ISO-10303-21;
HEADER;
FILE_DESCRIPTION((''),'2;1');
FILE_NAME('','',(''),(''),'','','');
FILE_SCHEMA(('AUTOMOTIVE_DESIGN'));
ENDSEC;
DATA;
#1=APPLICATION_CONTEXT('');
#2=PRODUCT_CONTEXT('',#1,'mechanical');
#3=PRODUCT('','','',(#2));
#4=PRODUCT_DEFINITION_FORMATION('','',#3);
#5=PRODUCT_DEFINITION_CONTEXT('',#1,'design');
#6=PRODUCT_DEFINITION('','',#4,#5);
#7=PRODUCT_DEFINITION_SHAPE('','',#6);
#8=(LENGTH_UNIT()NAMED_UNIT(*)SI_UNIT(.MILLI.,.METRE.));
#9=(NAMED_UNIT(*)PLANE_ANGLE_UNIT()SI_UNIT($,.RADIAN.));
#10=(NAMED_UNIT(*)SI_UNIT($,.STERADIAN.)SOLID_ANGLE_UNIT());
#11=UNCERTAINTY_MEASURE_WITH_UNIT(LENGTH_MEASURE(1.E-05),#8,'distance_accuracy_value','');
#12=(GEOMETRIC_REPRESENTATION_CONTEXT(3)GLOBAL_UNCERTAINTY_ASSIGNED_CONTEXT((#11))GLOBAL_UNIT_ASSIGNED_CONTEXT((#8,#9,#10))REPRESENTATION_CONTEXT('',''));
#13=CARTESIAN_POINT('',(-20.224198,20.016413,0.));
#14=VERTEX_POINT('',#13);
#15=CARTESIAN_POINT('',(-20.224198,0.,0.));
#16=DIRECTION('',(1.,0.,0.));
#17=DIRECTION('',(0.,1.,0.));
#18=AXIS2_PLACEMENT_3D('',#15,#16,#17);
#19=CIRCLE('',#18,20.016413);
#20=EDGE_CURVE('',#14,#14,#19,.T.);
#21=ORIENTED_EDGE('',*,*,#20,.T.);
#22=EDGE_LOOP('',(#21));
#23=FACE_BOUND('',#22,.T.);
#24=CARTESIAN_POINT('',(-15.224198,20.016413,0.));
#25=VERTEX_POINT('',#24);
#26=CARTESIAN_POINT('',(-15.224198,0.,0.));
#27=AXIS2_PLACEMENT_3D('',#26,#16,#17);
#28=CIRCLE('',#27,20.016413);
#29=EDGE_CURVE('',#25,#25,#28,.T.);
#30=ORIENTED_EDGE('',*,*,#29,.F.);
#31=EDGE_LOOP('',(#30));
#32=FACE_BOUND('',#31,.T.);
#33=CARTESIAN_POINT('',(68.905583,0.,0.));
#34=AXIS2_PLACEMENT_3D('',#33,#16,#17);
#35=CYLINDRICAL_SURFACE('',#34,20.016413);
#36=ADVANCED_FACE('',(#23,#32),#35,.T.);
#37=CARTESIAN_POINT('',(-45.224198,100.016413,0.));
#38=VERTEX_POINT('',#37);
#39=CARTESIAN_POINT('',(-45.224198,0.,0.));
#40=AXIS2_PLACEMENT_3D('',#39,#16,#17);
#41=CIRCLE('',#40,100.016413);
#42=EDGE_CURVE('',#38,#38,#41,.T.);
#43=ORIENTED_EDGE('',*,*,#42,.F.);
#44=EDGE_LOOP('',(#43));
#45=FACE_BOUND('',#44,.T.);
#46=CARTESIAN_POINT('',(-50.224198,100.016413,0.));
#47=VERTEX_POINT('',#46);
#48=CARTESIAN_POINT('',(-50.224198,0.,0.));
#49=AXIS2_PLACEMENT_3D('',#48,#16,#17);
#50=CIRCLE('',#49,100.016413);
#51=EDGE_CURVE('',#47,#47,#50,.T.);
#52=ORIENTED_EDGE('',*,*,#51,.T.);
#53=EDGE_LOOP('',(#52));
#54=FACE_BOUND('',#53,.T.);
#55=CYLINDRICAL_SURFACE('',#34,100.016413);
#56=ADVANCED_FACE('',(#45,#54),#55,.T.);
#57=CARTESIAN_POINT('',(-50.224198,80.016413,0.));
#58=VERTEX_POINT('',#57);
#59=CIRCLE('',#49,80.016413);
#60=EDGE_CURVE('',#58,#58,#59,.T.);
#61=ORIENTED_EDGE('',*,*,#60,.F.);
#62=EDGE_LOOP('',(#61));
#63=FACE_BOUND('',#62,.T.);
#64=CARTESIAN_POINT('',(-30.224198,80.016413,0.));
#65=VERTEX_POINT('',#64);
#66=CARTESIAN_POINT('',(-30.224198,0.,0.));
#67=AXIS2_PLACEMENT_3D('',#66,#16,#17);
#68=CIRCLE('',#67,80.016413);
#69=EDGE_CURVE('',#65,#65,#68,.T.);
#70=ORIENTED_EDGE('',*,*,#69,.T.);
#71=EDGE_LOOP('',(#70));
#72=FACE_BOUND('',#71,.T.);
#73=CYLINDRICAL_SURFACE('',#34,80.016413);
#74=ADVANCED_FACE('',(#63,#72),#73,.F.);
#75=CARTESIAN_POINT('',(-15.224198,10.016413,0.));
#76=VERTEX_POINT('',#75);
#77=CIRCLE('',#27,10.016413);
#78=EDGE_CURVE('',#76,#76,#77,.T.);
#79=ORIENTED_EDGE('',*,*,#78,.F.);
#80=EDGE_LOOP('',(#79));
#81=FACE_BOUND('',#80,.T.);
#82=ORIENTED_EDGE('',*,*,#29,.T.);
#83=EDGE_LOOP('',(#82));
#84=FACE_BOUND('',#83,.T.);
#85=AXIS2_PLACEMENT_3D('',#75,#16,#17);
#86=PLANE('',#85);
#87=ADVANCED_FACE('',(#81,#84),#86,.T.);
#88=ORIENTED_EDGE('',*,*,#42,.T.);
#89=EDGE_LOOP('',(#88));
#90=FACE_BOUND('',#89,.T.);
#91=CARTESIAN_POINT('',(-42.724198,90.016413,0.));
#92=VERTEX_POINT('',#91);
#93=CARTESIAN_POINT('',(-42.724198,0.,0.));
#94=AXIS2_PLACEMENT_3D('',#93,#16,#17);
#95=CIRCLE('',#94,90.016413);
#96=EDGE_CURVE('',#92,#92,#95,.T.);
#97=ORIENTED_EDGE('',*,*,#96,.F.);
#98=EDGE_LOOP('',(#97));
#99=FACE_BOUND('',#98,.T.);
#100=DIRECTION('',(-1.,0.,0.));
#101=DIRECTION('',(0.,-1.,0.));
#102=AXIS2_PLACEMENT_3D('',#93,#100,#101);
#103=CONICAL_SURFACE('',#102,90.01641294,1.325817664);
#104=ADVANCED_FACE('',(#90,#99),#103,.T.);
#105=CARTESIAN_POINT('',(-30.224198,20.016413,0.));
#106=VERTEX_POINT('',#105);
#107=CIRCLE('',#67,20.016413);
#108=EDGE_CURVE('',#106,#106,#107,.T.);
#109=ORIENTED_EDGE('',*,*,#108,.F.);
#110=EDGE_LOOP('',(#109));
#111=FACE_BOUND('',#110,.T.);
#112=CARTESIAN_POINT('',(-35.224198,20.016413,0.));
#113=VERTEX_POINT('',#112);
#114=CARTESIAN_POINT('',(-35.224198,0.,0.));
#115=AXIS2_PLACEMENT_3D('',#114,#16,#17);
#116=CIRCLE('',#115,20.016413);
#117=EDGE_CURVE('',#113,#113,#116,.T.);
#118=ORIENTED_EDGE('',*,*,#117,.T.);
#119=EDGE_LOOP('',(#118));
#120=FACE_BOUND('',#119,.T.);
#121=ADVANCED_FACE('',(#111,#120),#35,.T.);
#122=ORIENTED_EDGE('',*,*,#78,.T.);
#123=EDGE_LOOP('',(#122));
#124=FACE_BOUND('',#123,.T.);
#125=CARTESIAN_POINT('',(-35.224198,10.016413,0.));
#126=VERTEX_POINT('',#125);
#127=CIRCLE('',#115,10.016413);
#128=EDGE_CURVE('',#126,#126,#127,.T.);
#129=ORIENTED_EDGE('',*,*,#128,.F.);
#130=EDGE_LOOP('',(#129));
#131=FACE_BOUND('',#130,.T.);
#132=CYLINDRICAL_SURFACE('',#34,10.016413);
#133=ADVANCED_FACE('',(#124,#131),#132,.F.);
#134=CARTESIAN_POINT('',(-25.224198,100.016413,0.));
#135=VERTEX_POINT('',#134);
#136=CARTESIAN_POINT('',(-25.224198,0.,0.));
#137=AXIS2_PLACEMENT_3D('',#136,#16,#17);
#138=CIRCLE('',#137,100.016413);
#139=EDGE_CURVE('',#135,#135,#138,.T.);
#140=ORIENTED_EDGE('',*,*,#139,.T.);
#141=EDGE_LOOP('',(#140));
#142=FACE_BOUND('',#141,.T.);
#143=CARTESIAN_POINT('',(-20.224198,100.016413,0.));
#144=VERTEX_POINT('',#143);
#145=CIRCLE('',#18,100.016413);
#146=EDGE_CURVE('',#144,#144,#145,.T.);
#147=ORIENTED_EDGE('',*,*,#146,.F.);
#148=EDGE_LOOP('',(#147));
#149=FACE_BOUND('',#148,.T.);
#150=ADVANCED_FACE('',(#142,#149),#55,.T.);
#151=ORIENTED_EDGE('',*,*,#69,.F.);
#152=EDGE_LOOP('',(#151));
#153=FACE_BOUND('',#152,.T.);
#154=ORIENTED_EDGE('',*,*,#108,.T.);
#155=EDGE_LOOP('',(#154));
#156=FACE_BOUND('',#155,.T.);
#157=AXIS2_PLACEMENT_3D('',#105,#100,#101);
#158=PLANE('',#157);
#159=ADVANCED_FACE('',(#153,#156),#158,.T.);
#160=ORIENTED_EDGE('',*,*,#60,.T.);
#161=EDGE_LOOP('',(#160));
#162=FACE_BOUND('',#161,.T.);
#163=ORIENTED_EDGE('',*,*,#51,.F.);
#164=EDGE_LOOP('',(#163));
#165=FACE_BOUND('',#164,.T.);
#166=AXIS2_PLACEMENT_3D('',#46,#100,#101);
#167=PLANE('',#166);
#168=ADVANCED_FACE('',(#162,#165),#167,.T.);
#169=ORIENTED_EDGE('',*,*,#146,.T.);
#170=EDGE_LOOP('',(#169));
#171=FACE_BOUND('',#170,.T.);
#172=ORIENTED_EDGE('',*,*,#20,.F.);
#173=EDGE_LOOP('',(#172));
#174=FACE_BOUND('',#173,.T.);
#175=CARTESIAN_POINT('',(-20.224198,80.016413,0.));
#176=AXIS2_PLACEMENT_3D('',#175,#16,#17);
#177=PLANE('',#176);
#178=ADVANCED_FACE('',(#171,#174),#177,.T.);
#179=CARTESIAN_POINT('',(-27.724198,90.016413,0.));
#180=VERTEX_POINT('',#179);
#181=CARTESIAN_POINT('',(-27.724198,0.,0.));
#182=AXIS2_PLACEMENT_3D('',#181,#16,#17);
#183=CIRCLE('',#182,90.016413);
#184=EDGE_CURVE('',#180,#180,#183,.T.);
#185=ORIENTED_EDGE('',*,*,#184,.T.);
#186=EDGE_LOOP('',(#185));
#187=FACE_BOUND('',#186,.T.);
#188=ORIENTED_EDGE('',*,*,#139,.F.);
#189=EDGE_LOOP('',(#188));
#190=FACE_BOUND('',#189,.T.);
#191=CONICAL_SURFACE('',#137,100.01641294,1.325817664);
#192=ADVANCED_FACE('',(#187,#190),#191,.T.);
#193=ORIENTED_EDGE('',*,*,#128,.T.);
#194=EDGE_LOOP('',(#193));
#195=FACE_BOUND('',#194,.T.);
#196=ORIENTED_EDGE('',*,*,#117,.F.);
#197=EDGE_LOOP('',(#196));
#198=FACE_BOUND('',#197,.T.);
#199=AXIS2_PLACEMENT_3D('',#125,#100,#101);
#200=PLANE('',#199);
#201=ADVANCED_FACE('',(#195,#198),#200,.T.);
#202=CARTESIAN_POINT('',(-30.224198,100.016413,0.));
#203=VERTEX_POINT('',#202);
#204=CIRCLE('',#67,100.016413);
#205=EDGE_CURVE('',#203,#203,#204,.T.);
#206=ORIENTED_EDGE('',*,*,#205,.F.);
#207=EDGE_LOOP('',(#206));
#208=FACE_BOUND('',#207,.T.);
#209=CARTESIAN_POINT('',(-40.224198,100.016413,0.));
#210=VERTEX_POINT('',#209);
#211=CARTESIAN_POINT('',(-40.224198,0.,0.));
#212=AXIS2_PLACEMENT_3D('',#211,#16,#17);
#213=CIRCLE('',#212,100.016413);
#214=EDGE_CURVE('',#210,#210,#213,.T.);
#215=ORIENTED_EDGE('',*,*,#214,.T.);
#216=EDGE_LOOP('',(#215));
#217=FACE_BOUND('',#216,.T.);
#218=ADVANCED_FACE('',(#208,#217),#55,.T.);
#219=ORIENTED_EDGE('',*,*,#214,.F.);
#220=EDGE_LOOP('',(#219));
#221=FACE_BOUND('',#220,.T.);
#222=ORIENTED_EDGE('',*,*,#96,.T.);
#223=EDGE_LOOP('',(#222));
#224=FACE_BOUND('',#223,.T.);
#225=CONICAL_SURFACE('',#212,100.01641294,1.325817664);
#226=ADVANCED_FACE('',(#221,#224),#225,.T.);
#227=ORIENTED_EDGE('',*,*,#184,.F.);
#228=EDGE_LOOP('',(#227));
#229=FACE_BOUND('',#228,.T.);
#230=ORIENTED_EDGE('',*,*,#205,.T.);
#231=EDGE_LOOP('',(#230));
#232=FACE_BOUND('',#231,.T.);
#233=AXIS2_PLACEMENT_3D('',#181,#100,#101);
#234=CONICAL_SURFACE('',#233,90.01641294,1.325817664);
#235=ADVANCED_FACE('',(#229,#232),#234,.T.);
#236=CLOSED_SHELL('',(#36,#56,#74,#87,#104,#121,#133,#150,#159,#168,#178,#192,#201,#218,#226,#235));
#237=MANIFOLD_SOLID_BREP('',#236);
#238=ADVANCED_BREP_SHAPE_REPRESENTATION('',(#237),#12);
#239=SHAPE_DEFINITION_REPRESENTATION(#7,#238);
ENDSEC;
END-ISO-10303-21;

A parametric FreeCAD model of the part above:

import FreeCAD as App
import Part
import Sketcher

V = App.Vector

doc = App.newDocument("Part")
params = doc.addObject("Spreadsheet::Sheet", "Params")
for row, (alias, value) in enumerate([
    ("sketch1_width", "20 mm"),
    ("sketch1_width2", "5 mm"),
    ("sketch1_height", "80 mm"),
    ("revolution_angle", "360 deg"),
], start=1):
    params.set(f"A{row}", alias)
    params.set(f"B{row}", "=" + value)
    params.setAlias(f"B{row}", alias)

body = doc.addObject("PartDesign::Body", "Body")

# Sketch on XY plane
sketch1 = body.newObject("Sketcher::SketchObject", "Sketch")
sketch1.AttachmentSupport = (doc.getObject("XY_Plane"), [""])
sketch1.MapMode = "FlatFace"
sketch1.addGeometry(Part.LineSegment(V(-35, 10, 0), V(-15, 10, 0)), False)
sketch1.addGeometry(Part.LineSegment(V(-15, 10, 0), V(-15, 20, 0)), False)
sketch1.addGeometry(Part.LineSegment(V(-15, 20, 0), V(-20, 20, 0)), False)
sketch1.addGeometry(Part.LineSegment(V(-20, 20, 0), V(-20, 100, 0)), False)
sketch1.addGeometry(Part.LineSegment(V(-20, 100, 0), V(-25, 100, 0)), False)
sketch1.addGeometry(Part.LineSegment(V(-25, 100, 0), V(-28, 90, 0)), False)
sketch1.addGeometry(Part.LineSegment(V(-28, 90, 0), V(-30, 100, 0)), False)
sketch1.addGeometry(Part.LineSegment(V(-30, 100, 0), V(-40, 100, 0)), False)
sketch1.addGeometry(Part.LineSegment(V(-40, 100, 0), V(-43, 90, 0)), False)
sketch1.addGeometry(Part.LineSegment(V(-43, 90, 0), V(-45, 100, 0)), False)
sketch1.addGeometry(Part.LineSegment(V(-45, 100, 0), V(-50, 100, 0)), False)
sketch1.addGeometry(Part.LineSegment(V(-50, 100, 0), V(-50, 80, 0)), False)
sketch1.addGeometry(Part.LineSegment(V(-50, 80, 0), V(-30, 80, 0)), False)
sketch1.addGeometry(Part.LineSegment(V(-30, 80, 0), V(-30, 20, 0)), False)
sketch1.addGeometry(Part.LineSegment(V(-30, 20, 0), V(-35, 20, 0)), False)
sketch1.addGeometry(Part.LineSegment(V(-35, 20, 0), V(-35, 10, 0)), False)
sketch1.addConstraint(Sketcher.Constraint("Coincident", 0, 2, 1, 1))
sketch1.addConstraint(Sketcher.Constraint("Coincident", 1, 2, 2, 1))
sketch1.addConstraint(Sketcher.Constraint("Coincident", 2, 2, 3, 1))
sketch1.addConstraint(Sketcher.Constraint("Coincident", 3, 2, 4, 1))
sketch1.addConstraint(Sketcher.Constraint("Coincident", 4, 2, 5, 1))
sketch1.addConstraint(Sketcher.Constraint("Coincident", 5, 2, 6, 1))
sketch1.addConstraint(Sketcher.Constraint("Coincident", 6, 2, 7, 1))
sketch1.addConstraint(Sketcher.Constraint("Coincident", 7, 2, 8, 1))
sketch1.addConstraint(Sketcher.Constraint("Coincident", 8, 2, 9, 1))
sketch1.addConstraint(Sketcher.Constraint("Coincident", 9, 2, 10, 1))
sketch1.addConstraint(Sketcher.Constraint("Coincident", 10, 2, 11, 1))
sketch1.addConstraint(Sketcher.Constraint("Coincident", 11, 2, 12, 1))
sketch1.addConstraint(Sketcher.Constraint("Coincident", 12, 2, 13, 1))
sketch1.addConstraint(Sketcher.Constraint("Coincident", 13, 2, 14, 1))
sketch1.addConstraint(Sketcher.Constraint("Coincident", 14, 2, 15, 1))
sketch1.addConstraint(Sketcher.Constraint("Coincident", 15, 2, 0, 1))
sketch1.addConstraint(Sketcher.Constraint("Horizontal", 0))
sketch1.addConstraint(Sketcher.Constraint("Vertical", 1))
sketch1.addConstraint(Sketcher.Constraint("Horizontal", 2))
sketch1.addConstraint(Sketcher.Constraint("Vertical", 3))
sketch1.addConstraint(Sketcher.Constraint("Horizontal", 4))
sketch1.addConstraint(Sketcher.Constraint("Horizontal", 7))
sketch1.addConstraint(Sketcher.Constraint("Horizontal", 10))
sketch1.addConstraint(Sketcher.Constraint("Vertical", 11))
sketch1.addConstraint(Sketcher.Constraint("Horizontal", 12))
sketch1.addConstraint(Sketcher.Constraint("Vertical", 13))
sketch1.addConstraint(Sketcher.Constraint("Horizontal", 14))
sketch1.addConstraint(Sketcher.Constraint("Vertical", 15))
sketch1.addConstraint(Sketcher.Constraint("Parallel", 5, 8))
sketch1.addConstraint(Sketcher.Constraint("Parallel", 6, 9))
sketch1.addConstraint(Sketcher.Constraint("Horizontal", 4, 2, 6, 2))
sketch1.addConstraint(Sketcher.Constraint("Horizontal", 5, 2, 8, 2))
sketch1.addConstraint(Sketcher.Constraint("Horizontal", 7, 2, 9, 2))
sketch1.addConstraint(Sketcher.Constraint("Horizontal", 2, 2, 13, 2))
sketch1.addConstraint(Sketcher.Constraint("Vertical", 6, 2, 12, 2))
sketch1.addConstraint(Sketcher.Constraint("Equal", 2, 4))
sketch1.addConstraint(Sketcher.Constraint("Equal", 4, 10))
sketch1.addConstraint(Sketcher.Constraint("Equal", 0, 12))
sketch1.addConstraint(Sketcher.Constraint("Equal", 10, 14))
sketch1.addConstraint(Sketcher.Constraint("Equal", 7, 1))
sketch1.addConstraint(Sketcher.Constraint("Equal", 12, 11))
sketch1.addConstraint(Sketcher.Constraint("Equal", 5, 6))
sketch1.addConstraint(Sketcher.Constraint("DistanceX", 0, 1, 0, 2, 20.0))
sketch1.addConstraint(Sketcher.Constraint("DistanceX", 2, 2, 2, 1, 5.0))
sketch1.addConstraint(Sketcher.Constraint("DistanceY", 3, 1, 3, 2, 80.0))
sketch1.addConstraint(Sketcher.Constraint("DistanceY", 5, 2, 4, 2, 10.0))
sketch1.addConstraint(Sketcher.Constraint("DistanceX", 0, 2, -1, 1, 15.224198))
sketch1.addConstraint(Sketcher.Constraint("DistanceY", -1, 1, 0, 2, 10.016413))
sketch1.setExpression("Constraints[42]", "Params.sketch1_width")
sketch1.setExpression("Constraints[43]", "Params.sketch1_width2")
sketch1.setExpression("Constraints[44]", "Params.sketch1_height")
revolution = body.newObject("PartDesign::Revolution", "Revolution")
revolution.Profile = sketch1
revolution.ReferenceAxis = (sketch1, ["H_Axis"])
revolution.setExpression("Angle", "Params.revolution_angle")

doc.recompute()
